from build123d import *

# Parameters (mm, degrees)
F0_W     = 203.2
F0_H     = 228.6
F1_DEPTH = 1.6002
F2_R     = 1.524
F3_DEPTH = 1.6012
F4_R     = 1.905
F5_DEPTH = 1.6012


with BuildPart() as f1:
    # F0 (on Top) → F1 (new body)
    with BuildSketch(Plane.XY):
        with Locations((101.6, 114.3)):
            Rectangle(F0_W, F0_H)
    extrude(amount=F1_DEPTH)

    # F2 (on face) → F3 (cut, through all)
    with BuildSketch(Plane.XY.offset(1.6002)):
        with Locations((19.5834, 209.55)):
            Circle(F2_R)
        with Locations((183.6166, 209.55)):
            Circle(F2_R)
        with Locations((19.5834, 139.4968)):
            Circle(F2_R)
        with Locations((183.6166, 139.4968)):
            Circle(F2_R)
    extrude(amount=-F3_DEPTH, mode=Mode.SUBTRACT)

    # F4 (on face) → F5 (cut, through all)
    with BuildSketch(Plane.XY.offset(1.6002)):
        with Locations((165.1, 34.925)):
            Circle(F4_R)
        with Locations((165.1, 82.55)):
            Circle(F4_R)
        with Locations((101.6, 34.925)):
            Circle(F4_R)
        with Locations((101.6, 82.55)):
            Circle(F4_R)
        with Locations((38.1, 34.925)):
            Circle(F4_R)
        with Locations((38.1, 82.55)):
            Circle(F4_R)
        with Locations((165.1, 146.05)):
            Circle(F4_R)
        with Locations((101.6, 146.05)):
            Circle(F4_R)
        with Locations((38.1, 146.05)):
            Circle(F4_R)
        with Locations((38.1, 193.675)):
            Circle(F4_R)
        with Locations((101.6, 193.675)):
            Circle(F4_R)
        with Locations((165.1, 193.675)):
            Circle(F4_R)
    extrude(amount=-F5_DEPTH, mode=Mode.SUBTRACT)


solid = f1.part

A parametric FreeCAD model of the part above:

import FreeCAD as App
import Part
import Sketcher
Q = App.Units.Quantity


def add_polygon(sketch, points):
    """Adds a closed chain of lines whose ends are joined by coincident constraints."""
    first, n = sketch.GeometryCount, len(points)
    for a, b in zip(points, points[1:] + points[:1]):
        sketch.addGeometry(Part.LineSegment(App.Vector(*a, 0), App.Vector(*b, 0)), False)
    for i in range(n):
        sketch.addConstraint(Sketcher.Constraint("Coincident", first + i, 2, first + (i + 1) % n, 1))

doc = App.newDocument("Part")
body = doc.addObject("PartDesign::Body", "Body")

sketch1 = body.newObject("Sketcher::SketchObject", "Sketch")
sketch1.AttachmentSupport = (doc.getObject("XY_Plane"), [""])
sketch1.MapMode = "FlatFace"
add_polygon(sketch1, [(0, 229), (0, 0), (203, 0), (203, 229)])
sketch1.addConstraint([
    Sketcher.Constraint("Vertical", 0),
    Sketcher.Constraint("Horizontal", 1),
    Sketcher.Constraint("Vertical", 2),
    Sketcher.Constraint("Horizontal", 3),
    Sketcher.Constraint("Coincident", 0, 2, -1, 1),
    Sketcher.Constraint("DistanceX", 1, 1, 1, 2, Q("8 in")),
    Sketcher.Constraint("DistanceY", 0, 2, 0, 1, Q("9 in")),
])
pad1 = body.newObject("PartDesign::Pad", "Pad")
pad1.Profile = sketch1
pad1.Length = Q("0.063 in")

sketch2 = body.newObject("Sketcher::SketchObject", "Sketch001")
sketch2.AttachmentSupport = (doc.getObject("XY_Plane"), [""])
sketch2.MapMode = "FlatFace"
sketch2.AttachmentOffset = App.Placement(App.Vector(0, 0, 0.063 * 25.4), App.Rotation())
sketch2.addGeometry([
    Part.Circle(App.Vector(19.6, 209.6, 0), App.Vector(0, 0, 1), 1.5),
    Part.Circle(App.Vector(183.6, 209.6, 0), App.Vector(0, 0, 1), 1.5),
    Part.Circle(App.Vector(19.6, 139.5, 0), App.Vector(0, 0, 1), 1.5),
    Part.Circle(App.Vector(183.6, 139.5, 0), App.Vector(0, 0, 1), 1.5),
], False)
sketch2.addConstraint([
    Sketcher.Constraint("Equal", 0, 1),
    Sketcher.Constraint("Equal", 1, 2),
    Sketcher.Constraint("Equal", 2, 3),
    Sketcher.Constraint("Horizontal", 0, 3, 1, 3),
    Sketcher.Constraint("Horizontal", 2, 3, 3, 3),
    Sketcher.Constraint("Vertical", 0, 3, 2, 3),
    Sketcher.Constraint("Vertical", 1, 3, 3, 3),
    Sketcher.Constraint("Diameter", 0, Q("0.12 in")),
    Sketcher.Constraint("DistanceY", -1, 1, 0, 3, Q("8.25 in")),
    Sketcher.Constraint("DistanceX", -1, 1, 0, 3, Q("0.771 in")),
    Sketcher.Constraint("DistanceX", -1, 1, 1, 3, Q("7.229 in")),
    Sketcher.Constraint("DistanceY", -1, 1, 2, 3, Q("5.492 in")),
])
pocket1 = body.newObject("PartDesign::Pocket", "Pocket")
pocket1.Profile = sketch2
pocket1.Type = "ThroughAll"

sketch3 = body.newObject("Sketcher::SketchObject", "Sketch002")
sketch3.AttachmentSupport = (doc.getObject("XY_Plane"), [""])
sketch3.MapMode = "FlatFace"
sketch3.AttachmentOffset = App.Placement(App.Vector(0, 0, 0.063 * 25.4), App.Rotation())
sketch3.addGeometry([
    Part.Circle(App.Vector(165.1, 34.9, 0), App.Vector(0, 0, 1), 1.9),
    Part.Circle(App.Vector(165.1, 82.5, 0), App.Vector(0, 0, 1), 1.9),
    Part.Circle(App.Vector(101.6, 34.9, 0), App.Vector(0, 0, 1), 1.9),
    Part.Circle(App.Vector(101.6, 82.5, 0), App.Vector(0, 0, 1), 1.9),
    Part.Circle(App.Vector(38.1, 34.9, 0), App.Vector(0, 0, 1), 1.9),
    Part.Circle(App.Vector(38.1, 82.5, 0), App.Vector(0, 0, 1), 1.9),
    Part.Circle(App.Vector(165.1, 146.1, 0), App.Vector(0, 0, 1), 1.9),
    Part.Circle(App.Vector(101.6, 146.1, 0), App.Vector(0, 0, 1), 1.9),
    Part.Circle(App.Vector(38.1, 146.1, 0), App.Vector(0, 0, 1), 1.9),
    Part.Circle(App.Vector(38.1, 193.7, 0), App.Vector(0, 0, 1), 1.9),
    Part.Circle(App.Vector(101.6, 193.7, 0), App.Vector(0, 0, 1), 1.9),
    Part.Circle(App.Vector(165.1, 193.7, 0), App.Vector(0, 0, 1), 1.9),
], False)
sketch3.addConstraint([
    Sketcher.Constraint("Equal", 0, 1),
    Sketcher.Constraint("Equal", 1, 2),
    Sketcher.Constraint("Equal", 2, 3),
    Sketcher.Constraint("Equal", 3, 4),
    Sketcher.Constraint("Equal", 4, 5),
    Sketcher.Constraint("Equal", 5, 6),
    Sketcher.Constraint("Equal", 6, 7),
    Sketcher.Constraint("Equal", 7, 8),
    Sketcher.Constraint("Equal", 8, 9),
    Sketcher.Constraint("Equal", 9, 10),
    Sketcher.Constraint("Equal", 10, 11),
    Sketcher.Constraint("Horizontal", 0, 3, 2, 3),
    Sketcher.Constraint("Horizontal", 1, 3, 3, 3),
    Sketcher.Constraint("Horizontal", 2, 3, 4, 3),
    Sketcher.Constraint("Horizontal", 3, 3, 5, 3),
    Sketcher.Constraint("Horizontal", 6, 3, 7, 3),
    Sketcher.Constraint("Horizontal", 7, 3, 8, 3),
    Sketcher.Constraint("Horizontal", 9, 3, 10, 3),
    Sketcher.Constraint("Horizontal", 10, 3, 11, 3),
    Sketcher.Constraint("Vertical", 0, 3, 1, 3),
    Sketcher.Constraint("Vertical", 2, 3, 3, 3),
    Sketcher.Constraint("Vertical", 4, 3, 5, 3),
    Sketcher.Constraint("Vertical", 1, 3, 6, 3),
    Sketcher.Constraint("Vertical", 3, 3, 7, 3),
    Sketcher.Constraint("Vertical", 5, 3, 8, 3),
    Sketcher.Constraint("Vertical", 8, 3, 9, 3),
    Sketcher.Constraint("Vertical", 7, 3, 10, 3),
    Sketcher.Constraint("Vertical", 6, 3, 11, 3),
    Sketcher.Constraint("Diameter", 0, Q("0.15 in")),
    Sketcher.Constraint("DistanceX", -1, 1, 2, 3, Q("4 in")),
    Sketcher.Constraint("DistanceX", 4, 3, 0, 3, Q("5 in")),
    Sketcher.Constraint("DistanceX", -1, 1, 0, 3, Q("6.5 in")),
    Sketcher.Constraint("DistanceY", 1, 3, 6, 3, Q("2.5 in")),
    Sketcher.Constraint("DistanceY", -1, 1, 1, 3, Q("3.25 in")),
    Sketcher.Constraint("DistanceY", -1, 1, 0, 3, Q("1.375 in")),
    Sketcher.Constraint("DistanceY", -1, 1, 9, 3, Q("7.625 in")),
])
pocket2 = body.newObject("PartDesign::Pocket", "Pocket001")
pocket2.Profile = sketch3
pocket2.Type = "ThroughAll"

doc.recompute()
